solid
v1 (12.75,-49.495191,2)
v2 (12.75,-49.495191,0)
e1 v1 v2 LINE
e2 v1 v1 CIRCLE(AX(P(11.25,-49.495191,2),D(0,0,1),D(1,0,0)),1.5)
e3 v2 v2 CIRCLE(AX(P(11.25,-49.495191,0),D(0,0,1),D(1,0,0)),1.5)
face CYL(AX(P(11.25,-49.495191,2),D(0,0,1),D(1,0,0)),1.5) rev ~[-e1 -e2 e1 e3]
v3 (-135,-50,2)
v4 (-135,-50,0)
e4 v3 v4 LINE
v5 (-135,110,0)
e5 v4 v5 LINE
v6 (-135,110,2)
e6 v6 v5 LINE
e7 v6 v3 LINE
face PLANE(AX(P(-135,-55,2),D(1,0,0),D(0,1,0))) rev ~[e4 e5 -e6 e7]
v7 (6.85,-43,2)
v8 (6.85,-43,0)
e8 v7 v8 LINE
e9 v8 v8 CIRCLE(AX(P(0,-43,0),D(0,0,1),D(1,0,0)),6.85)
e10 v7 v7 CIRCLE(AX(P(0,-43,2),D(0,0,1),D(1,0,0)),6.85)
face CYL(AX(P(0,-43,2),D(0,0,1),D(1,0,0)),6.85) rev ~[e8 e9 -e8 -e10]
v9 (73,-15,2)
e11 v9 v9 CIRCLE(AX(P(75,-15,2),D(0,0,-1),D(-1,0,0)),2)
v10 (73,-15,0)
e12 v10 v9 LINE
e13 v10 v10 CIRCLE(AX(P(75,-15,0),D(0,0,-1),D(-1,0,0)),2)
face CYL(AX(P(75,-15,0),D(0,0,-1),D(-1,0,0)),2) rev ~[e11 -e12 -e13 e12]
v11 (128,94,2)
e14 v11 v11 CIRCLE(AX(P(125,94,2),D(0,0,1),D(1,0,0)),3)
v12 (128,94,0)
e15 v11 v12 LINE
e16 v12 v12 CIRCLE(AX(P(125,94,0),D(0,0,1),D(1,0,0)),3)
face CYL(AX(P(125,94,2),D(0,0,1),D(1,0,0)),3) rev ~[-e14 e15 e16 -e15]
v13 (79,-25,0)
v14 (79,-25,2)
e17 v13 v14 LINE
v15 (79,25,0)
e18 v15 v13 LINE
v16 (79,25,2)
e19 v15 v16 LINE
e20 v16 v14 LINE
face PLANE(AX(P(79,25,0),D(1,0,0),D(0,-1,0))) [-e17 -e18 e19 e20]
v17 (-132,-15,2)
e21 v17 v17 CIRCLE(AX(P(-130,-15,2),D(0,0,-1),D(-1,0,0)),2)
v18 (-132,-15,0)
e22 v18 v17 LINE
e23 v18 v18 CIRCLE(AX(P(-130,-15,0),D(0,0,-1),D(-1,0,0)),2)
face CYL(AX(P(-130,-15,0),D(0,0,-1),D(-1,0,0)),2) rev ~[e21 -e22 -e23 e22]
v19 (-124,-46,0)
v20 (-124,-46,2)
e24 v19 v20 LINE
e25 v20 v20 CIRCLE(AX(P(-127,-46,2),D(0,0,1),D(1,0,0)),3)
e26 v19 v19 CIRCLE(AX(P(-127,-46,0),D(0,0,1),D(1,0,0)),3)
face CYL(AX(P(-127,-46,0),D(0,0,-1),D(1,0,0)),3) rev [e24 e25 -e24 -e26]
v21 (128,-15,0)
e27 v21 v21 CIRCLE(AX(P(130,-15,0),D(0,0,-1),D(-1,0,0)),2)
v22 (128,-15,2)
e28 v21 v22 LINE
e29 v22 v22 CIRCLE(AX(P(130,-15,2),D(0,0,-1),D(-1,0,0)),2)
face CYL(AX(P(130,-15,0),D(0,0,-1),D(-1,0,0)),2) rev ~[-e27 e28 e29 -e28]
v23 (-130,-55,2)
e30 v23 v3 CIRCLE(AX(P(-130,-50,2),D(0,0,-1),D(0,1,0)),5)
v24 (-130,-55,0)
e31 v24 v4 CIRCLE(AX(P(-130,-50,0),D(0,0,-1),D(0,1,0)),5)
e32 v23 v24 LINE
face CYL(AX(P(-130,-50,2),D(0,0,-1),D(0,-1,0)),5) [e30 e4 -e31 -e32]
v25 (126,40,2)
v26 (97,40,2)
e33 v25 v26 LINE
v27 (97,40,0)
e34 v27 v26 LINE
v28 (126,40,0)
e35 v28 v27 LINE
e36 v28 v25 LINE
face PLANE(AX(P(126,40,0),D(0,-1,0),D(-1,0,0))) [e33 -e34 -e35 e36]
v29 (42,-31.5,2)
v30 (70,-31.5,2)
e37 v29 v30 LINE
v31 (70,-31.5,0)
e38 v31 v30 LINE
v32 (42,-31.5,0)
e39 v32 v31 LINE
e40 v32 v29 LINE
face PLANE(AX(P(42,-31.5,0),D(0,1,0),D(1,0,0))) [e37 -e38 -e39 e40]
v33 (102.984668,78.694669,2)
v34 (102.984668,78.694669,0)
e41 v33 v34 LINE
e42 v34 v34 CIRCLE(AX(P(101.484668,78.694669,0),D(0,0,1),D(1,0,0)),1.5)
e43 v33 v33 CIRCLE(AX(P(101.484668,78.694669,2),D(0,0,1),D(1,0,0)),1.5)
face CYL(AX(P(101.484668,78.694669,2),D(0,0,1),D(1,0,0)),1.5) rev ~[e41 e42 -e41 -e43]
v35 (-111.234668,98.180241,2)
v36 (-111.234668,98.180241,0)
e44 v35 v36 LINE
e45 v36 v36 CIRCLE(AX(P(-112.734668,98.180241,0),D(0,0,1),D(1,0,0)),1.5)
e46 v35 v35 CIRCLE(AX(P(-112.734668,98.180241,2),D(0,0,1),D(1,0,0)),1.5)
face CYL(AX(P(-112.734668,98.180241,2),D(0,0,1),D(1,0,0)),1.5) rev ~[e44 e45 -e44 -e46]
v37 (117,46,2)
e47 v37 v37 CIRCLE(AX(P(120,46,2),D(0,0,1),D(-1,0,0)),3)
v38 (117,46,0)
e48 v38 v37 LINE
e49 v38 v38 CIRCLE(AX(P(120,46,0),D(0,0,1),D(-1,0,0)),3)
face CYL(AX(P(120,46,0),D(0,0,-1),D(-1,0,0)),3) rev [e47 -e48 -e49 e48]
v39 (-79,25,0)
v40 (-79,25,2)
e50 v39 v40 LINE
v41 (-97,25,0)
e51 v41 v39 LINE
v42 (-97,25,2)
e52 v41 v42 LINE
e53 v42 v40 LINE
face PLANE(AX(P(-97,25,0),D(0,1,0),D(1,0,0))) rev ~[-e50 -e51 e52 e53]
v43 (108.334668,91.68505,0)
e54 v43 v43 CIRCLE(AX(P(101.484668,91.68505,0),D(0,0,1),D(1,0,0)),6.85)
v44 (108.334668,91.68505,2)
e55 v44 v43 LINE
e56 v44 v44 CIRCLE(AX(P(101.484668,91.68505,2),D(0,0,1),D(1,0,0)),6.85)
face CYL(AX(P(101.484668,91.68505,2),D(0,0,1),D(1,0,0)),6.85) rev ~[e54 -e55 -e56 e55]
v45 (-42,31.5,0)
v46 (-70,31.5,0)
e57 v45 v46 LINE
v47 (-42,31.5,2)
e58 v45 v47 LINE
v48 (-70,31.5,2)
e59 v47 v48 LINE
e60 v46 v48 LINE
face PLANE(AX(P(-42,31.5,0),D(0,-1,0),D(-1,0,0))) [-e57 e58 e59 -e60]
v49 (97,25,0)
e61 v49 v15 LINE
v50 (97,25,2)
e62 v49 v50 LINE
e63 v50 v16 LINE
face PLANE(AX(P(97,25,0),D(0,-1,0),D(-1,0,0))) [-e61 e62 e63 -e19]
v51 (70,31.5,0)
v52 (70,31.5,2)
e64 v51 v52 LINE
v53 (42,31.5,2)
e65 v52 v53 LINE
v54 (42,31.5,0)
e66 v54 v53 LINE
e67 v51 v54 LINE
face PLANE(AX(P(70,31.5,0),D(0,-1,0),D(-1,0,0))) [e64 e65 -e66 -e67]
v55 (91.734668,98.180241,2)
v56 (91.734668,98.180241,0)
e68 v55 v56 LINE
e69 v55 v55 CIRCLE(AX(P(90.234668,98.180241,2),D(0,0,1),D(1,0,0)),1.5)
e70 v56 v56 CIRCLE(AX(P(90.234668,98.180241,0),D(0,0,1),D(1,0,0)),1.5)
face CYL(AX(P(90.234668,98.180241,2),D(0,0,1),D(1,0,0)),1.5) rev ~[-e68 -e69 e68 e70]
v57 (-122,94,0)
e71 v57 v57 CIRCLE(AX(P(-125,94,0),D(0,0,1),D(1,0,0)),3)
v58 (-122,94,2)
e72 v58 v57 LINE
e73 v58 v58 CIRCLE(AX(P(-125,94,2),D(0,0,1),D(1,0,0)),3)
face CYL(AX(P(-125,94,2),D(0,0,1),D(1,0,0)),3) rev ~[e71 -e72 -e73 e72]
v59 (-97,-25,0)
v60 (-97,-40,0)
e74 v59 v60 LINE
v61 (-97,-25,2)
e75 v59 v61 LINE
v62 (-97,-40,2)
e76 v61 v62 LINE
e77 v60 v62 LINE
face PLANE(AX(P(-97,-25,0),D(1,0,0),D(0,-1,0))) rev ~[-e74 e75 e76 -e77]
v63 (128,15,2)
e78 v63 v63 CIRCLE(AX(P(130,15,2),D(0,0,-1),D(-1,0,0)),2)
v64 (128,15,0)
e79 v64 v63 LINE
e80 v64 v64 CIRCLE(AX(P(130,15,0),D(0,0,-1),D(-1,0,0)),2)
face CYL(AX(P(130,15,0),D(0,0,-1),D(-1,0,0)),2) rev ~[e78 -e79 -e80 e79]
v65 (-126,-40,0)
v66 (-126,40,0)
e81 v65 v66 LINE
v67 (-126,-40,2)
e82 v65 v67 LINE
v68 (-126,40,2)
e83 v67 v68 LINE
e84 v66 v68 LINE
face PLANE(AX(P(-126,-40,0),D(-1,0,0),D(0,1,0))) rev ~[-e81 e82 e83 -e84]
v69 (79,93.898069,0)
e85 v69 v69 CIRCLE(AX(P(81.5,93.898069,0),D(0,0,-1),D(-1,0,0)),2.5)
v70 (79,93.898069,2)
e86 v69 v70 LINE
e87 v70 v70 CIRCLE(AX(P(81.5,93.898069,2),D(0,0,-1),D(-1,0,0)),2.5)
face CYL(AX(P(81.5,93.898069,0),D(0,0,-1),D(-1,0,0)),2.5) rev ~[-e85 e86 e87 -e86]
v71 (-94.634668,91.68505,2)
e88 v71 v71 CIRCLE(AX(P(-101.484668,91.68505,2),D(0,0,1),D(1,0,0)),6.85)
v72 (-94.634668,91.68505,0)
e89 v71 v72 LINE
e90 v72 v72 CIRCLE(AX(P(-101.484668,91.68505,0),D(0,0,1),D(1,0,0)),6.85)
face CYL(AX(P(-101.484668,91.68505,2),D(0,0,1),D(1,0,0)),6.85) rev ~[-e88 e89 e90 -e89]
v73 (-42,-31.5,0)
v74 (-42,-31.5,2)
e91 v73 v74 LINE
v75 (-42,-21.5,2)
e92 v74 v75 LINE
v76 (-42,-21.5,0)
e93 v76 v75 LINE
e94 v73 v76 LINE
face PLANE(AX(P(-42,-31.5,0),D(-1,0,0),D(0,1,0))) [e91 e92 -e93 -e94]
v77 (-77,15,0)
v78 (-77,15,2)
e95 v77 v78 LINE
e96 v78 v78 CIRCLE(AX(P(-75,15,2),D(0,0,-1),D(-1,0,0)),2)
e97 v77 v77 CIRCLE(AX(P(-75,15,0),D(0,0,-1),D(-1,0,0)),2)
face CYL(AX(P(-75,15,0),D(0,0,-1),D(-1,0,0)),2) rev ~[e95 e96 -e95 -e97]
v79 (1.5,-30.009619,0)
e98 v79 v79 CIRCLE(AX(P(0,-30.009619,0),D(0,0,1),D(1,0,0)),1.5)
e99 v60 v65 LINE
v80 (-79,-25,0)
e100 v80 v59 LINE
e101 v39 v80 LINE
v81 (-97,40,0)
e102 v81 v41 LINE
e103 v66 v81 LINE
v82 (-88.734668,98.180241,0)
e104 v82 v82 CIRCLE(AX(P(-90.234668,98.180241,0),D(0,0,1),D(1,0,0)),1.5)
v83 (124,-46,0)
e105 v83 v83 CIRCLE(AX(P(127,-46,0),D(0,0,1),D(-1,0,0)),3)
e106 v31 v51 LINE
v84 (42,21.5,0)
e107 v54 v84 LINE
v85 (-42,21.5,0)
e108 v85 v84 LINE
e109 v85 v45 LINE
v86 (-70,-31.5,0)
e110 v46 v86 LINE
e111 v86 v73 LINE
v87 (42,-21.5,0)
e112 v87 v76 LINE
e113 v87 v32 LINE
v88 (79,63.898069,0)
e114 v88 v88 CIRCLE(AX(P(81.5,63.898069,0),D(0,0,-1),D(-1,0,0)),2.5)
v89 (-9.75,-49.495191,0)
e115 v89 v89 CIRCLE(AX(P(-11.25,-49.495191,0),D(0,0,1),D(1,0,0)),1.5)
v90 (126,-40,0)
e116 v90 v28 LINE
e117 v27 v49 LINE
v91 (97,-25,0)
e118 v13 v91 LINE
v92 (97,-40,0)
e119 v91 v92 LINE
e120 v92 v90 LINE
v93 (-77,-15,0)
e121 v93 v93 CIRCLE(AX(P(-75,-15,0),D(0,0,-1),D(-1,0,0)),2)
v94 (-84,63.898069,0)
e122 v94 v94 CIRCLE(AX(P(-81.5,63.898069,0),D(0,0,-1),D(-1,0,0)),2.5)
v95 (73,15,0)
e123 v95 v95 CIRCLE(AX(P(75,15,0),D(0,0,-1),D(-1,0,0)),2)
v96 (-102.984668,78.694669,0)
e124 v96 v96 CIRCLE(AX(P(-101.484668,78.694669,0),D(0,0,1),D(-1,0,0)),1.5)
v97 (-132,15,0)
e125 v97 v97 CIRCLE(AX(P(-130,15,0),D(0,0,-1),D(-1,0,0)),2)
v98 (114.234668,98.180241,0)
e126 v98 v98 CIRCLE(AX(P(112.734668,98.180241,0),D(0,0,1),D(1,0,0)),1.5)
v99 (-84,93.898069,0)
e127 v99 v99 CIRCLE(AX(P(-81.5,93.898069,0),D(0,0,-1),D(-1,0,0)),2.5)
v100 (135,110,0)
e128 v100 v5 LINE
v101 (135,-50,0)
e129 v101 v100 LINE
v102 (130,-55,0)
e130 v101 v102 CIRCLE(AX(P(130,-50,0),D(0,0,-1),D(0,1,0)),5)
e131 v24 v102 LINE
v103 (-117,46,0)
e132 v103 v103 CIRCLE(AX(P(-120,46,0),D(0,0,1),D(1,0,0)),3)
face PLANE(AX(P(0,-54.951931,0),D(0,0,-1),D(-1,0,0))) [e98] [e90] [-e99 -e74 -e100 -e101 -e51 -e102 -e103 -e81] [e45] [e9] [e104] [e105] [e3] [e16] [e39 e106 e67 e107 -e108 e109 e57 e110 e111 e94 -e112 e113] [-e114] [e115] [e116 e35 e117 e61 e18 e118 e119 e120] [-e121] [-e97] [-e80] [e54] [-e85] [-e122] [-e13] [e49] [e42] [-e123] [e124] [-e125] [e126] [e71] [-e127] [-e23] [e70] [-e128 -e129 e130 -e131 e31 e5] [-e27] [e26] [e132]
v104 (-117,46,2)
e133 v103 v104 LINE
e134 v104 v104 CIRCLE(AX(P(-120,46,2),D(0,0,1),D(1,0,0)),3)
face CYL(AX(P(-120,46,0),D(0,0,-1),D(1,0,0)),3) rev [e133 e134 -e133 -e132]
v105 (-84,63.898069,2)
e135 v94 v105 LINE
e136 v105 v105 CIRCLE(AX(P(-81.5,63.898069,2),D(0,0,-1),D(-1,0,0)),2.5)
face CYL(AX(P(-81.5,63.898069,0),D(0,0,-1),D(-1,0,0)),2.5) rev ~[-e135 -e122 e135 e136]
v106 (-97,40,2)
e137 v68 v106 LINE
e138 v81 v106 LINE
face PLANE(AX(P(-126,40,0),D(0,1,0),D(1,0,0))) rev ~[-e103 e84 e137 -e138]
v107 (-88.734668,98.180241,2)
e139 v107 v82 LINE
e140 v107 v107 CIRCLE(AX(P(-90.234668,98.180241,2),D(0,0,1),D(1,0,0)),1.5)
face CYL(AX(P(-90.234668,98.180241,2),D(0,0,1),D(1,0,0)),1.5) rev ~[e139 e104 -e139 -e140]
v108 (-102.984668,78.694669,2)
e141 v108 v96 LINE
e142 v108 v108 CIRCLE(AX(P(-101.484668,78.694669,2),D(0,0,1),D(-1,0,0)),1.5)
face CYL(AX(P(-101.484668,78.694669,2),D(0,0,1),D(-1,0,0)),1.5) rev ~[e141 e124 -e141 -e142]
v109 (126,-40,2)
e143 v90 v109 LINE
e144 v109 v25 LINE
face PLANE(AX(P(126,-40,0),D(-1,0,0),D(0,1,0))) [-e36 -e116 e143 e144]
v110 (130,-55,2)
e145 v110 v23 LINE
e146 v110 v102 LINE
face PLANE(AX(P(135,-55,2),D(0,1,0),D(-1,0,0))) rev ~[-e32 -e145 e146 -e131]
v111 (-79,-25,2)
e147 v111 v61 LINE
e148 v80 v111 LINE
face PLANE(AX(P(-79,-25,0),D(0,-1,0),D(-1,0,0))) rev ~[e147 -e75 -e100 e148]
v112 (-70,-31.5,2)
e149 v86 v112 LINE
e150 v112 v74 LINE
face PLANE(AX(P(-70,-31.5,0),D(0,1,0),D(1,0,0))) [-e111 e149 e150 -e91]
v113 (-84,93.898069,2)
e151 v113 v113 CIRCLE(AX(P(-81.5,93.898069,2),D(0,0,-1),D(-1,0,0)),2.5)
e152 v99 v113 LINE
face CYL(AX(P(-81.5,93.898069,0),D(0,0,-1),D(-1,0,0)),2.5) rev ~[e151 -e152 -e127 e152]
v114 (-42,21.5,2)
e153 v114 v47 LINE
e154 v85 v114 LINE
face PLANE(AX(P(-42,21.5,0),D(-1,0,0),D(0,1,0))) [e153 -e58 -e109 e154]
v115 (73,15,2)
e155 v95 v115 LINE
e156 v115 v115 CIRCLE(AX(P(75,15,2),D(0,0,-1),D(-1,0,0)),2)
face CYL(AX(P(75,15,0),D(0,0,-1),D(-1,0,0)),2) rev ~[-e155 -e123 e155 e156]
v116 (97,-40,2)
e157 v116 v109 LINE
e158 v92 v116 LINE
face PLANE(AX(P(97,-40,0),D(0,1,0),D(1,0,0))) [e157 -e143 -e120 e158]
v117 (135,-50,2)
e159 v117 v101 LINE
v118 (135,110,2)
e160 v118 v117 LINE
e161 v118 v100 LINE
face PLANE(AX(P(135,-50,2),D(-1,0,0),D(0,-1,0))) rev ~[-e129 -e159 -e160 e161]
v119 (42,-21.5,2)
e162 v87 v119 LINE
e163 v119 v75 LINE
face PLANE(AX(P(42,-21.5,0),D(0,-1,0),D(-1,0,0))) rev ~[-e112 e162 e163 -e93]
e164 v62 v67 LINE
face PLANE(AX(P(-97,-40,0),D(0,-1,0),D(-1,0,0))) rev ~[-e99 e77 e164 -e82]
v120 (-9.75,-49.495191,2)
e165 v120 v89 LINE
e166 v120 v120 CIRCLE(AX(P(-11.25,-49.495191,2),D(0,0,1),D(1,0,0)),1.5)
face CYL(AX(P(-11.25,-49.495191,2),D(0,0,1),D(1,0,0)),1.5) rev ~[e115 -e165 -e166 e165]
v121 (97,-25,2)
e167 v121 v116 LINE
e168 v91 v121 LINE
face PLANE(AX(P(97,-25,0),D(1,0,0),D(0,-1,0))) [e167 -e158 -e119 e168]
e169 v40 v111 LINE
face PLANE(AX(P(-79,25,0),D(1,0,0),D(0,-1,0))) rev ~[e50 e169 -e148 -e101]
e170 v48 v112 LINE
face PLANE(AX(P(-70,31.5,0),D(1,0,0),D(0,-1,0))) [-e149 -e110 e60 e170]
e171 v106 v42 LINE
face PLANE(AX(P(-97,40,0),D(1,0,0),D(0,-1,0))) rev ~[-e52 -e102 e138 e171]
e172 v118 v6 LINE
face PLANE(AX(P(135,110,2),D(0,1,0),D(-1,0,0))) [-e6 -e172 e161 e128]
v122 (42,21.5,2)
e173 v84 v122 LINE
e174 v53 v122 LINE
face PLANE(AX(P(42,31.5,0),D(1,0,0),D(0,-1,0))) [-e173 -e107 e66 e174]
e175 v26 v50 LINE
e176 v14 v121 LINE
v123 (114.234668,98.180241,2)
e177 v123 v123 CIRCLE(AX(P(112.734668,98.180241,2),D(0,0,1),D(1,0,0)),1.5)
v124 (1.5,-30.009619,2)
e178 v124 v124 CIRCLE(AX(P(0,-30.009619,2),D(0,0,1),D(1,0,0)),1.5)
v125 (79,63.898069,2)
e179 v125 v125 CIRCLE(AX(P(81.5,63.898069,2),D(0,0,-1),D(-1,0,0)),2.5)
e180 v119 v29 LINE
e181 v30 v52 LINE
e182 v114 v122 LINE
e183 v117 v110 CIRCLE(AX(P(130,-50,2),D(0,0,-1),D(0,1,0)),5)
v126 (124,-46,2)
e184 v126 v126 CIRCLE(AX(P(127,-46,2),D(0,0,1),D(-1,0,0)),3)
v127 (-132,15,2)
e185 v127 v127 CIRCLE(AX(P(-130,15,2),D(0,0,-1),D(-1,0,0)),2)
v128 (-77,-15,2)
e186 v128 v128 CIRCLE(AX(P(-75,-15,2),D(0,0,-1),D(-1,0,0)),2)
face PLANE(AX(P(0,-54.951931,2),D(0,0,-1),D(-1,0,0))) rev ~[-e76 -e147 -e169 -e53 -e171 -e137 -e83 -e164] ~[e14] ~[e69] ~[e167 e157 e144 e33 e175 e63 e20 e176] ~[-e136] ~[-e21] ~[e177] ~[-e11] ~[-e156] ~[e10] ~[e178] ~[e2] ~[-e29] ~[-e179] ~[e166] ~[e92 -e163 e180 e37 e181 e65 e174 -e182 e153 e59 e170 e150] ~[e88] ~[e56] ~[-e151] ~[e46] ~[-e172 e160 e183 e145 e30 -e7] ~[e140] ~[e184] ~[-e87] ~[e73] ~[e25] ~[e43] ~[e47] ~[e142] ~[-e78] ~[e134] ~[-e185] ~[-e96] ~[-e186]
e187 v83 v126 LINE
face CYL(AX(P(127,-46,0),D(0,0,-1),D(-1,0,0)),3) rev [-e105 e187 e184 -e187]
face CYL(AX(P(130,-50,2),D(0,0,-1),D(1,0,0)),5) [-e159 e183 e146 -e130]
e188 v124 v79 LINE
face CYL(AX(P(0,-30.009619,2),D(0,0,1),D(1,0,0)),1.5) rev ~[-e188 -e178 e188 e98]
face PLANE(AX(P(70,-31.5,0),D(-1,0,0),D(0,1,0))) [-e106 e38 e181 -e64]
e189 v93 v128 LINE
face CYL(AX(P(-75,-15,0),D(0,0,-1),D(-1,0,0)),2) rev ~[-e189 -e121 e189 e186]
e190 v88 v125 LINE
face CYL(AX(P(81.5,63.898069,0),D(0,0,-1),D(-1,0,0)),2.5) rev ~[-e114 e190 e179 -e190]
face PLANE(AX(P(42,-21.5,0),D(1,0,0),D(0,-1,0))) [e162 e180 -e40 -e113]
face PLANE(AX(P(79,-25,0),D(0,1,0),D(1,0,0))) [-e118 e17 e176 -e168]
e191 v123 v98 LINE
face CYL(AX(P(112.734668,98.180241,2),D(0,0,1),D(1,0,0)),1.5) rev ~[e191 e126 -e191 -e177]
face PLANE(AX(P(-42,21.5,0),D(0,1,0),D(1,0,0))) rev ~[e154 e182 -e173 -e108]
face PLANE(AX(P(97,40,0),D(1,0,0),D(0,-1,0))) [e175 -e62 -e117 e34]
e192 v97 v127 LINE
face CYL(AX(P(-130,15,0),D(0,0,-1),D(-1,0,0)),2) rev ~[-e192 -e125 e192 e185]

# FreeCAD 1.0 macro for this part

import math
import FreeCAD as App
import Part
import Sketcher

V = App.Vector


def edges_at(feature, points):
    """Names of the edges that pass closest to the given points."""
    edges = feature.Shape.Edges
    near = lambda p: min(range(len(edges)), key=lambda i: edges[i].distToShape(Part.Vertex(*p))[0])
    return sorted({f"Edge{near(p) + 1}" for p in points})

doc = App.newDocument("Part")
body = doc.addObject("PartDesign::Body", "Body")

# Sketch on XY plane
sketch1 = body.newObject("Sketcher::SketchObject", "Sketch")
sketch1.AttachmentSupport = (doc.getObject("XY_Plane"), [""])
sketch1.MapMode = "FlatFace"
sketch1.addGeometry(Part.LineSegment(V(-135, -50, 0), V(135, -50, 0)), False)
sketch1.addGeometry(Part.LineSegment(V(135, -50, 0), V(135, 50, 0)), False)
sketch1.addGeometry(Part.LineSegment(V(135, 50, 0), V(-135, 50, 0)), False)
sketch1.addGeometry(Part.LineSegment(V(-135, 50, 0), V(-135, -50, 0)), False)
sketch1.addGeometry(Part.Circle(V(-127, -46, 0), V(0, 0, 1), 3), False)
sketch1.addGeometry(Part.LineSegment(V(-126, -40, 0), V(-126, 40, 0)), False)
sketch1.addGeometry(Part.LineSegment(V(-126, 40, 0), V(-97, 40, 0)), False)
sketch1.addGeometry(Part.LineSegment(V(-97, 40, 0), V(-97, 25, 0)), False)
sketch1.addGeometry(Part.LineSegment(V(-97, 25, 0), V(-79, 25, 0)), False)
sketch1.addGeometry(Part.LineSegment(V(-79, 25, 0), V(-79, -25, 0)), False)
sketch1.addGeometry(Part.LineSegment(V(-79, -25, 0), V(-97, -25, 0)), False)
sketch1.addGeometry(Part.LineSegment(V(-97, -25, 0), V(-97, -40, 0)), False)
sketch1.addGeometry(Part.LineSegment(V(-97, -40, 0), V(-126, -40, 0)), False)
sketch1.addGeometry(Part.Circle(V(127, -46, 0), V(0, 0, 1), 3), False)
sketch1.addGeometry(Part.LineSegment(V(-42, -31.5, 0), V(-70, -31.5, 0)), False)
sketch1.addGeometry(Part.LineSegment(V(-70, -31.5, 0), V(-70, 31.5, 0)), False)
sketch1.addGeometry(Part.LineSegment(V(-70, 31.5, 0), V(-42, 31.5, 0)), False)
sketch1.addGeometry(Part.LineSegment(V(-42, 31.5, 0), V(-42, 21.5, 0)), False)
sketch1.addGeometry(Part.LineSegment(V(-42, 21.5, 0), V(42, 21.5, 0)), False)
sketch1.addGeometry(Part.LineSegment(V(42, 21.5, 0), V(42, 31.5, 0)), False)
sketch1.addGeometry(Part.LineSegment(V(42, 31.5, 0), V(70, 31.5, 0)), False)
sketch1.addGeometry(Part.LineSegment(V(70, 31.5, 0), V(70, -31.5, 0)), False)
sketch1.addGeometry(Part.LineSegment(V(70, -31.5, 0), V(42, -31.5, 0)), False)
sketch1.addGeometry(Part.LineSegment(V(42, -31.5, 0), V(42, -21.5, 0)), False)
sketch1.addGeometry(Part.LineSegment(V(42, -21.5, 0), V(-42, -21.5, 0)), False)
sketch1.addGeometry(Part.LineSegment(V(-42, -21.5, 0), V(-42, -31.5, 0)), False)
sketch1.addGeometry(Part.LineSegment(V(126, -40, 0), V(97, -40, 0)), False)
sketch1.addGeometry(Part.LineSegment(V(97, -40, 0), V(97, -25, 0)), False)
sketch1.addGeometry(Part.LineSegment(V(97, -25, 0), V(79, -25, 0)), False)
sketch1.addGeometry(Part.LineSegment(V(79, -25, 0), V(79, 25, 0)), False)
sketch1.addGeometry(Part.LineSegment(V(79, 25, 0), V(97, 25, 0)), False)
sketch1.addGeometry(Part.LineSegment(V(97, 25, 0), V(97, 40, 0)), False)
sketch1.addGeometry(Part.LineSegment(V(97, 40, 0), V(126, 40, 0)), False)
sketch1.addGeometry(Part.LineSegment(V(126, 40, 0), V(126, -40, 0)), False)
sketch1.addGeometry(Part.Circle(V(-120, 46, 0), V(0, 0, 1), 3), False)
sketch1.addGeometry(Part.Circle(V(120, 46, 0), V(0, 0, 1), 3), False)
sketch1.addConstraint(Sketcher.Constraint("Coincident", 0, 2, 1, 1))
sketch1.addConstraint(Sketcher.Constraint("Coincident", 1, 2, 2, 1))
sketch1.addConstraint(Sketcher.Constraint("Coincident", 2, 2, 3, 1))
sketch1.addConstraint(Sketcher.Constraint("Coincident", 3, 2, 0, 1))
sketch1.addConstraint(Sketcher.Constraint("Coincident", 5, 2, 6, 1))
sketch1.addConstraint(Sketcher.Constraint("Coincident", 6, 2, 7, 1))
sketch1.addConstraint(Sketcher.Constraint("Coincident", 7, 2, 8, 1))
sketch1.addConstraint(Sketcher.Constraint("Coincident", 8, 2, 9, 1))
sketch1.addConstraint(Sketcher.Constraint("Coincident", 9, 2, 10, 1))
sketch1.addConstraint(Sketcher.Constraint("Coincident", 10, 2, 11, 1))
sketch1.addConstraint(Sketcher.Constraint("Coincident", 11, 2, 12, 1))
sketch1.addConstraint(Sketcher.Constraint("Coincident", 12, 2, 5, 1))
sketch1.addConstraint(Sketcher.Constraint("Coincident", 14, 2, 15, 1))
sketch1.addConstraint(Sketcher.Constraint("Coincident", 15, 2, 16, 1))
sketch1.addConstraint(Sketcher.Constraint("Coincident", 16, 2, 17, 1))
sketch1.addConstraint(Sketcher.Constraint("Coincident", 17, 2, 18, 1))
sketch1.addConstraint(Sketcher.Constraint("Coincident", 18, 2, 19, 1))
sketch1.addConstraint(Sketcher.Constraint("Coincident", 19, 2, 20, 1))
sketch1.addConstraint(Sketcher.Constraint("Coincident", 20, 2, 21, 1))
sketch1.addConstraint(Sketcher.Constraint("Coincident", 21, 2, 22, 1))
sketch1.addConstraint(Sketcher.Constraint("Coincident", 22, 2, 23, 1))
sketch1.addConstraint(Sketcher.Constraint("Coincident", 23, 2, 24, 1))
sketch1.addConstraint(Sketcher.Constraint("Coincident", 24, 2, 25, 1))
sketch1.addConstraint(Sketcher.Constraint("Coincident", 25, 2, 14, 1))
sketch1.addConstraint(Sketcher.Constraint("Coincident", 26, 2, 27, 1))
sketch1.addConstraint(Sketcher.Constraint("Coincident", 27, 2, 28, 1))
sketch1.addConstraint(Sketcher.Constraint("Coincident", 28, 2, 29, 1))
sketch1.addConstraint(Sketcher.Constraint("Coincident", 29, 2, 30, 1))
sketch1.addConstraint(Sketcher.Constraint("Coincident", 30, 2, 31, 1))
sketch1.addConstraint(Sketcher.Constraint("Coincident", 31, 2, 32, 1))
sketch1.addConstraint(Sketcher.Constraint("Coincident", 32, 2, 33, 1))
sketch1.addConstraint(Sketcher.Constraint("Coincident", 33, 2, 26, 1))
sketch1.addConstraint(Sketcher.Constraint("Horizontal", 0))
sketch1.addConstraint(Sketcher.Constraint("Vertical", 1))
sketch1.addConstraint(Sketcher.Constraint("Horizontal", 2))
sketch1.addConstraint(Sketcher.Constraint("Vertical", 3))
sketch1.addConstraint(Sketcher.Constraint("Vertical", 5))
sketch1.addConstraint(Sketcher.Constraint("Horizontal", 6))
sketch1.addConstraint(Sketcher.Constraint("Vertical", 7))
sketch1.addConstraint(Sketcher.Constraint("Horizontal", 8))
sketch1.addConstraint(Sketcher.Constraint("Vertical", 9))
sketch1.addConstraint(Sketcher.Constraint("Horizontal", 10))
sketch1.addConstraint(Sketcher.Constraint("Vertical", 11))
sketch1.addConstraint(Sketcher.Constraint("Horizontal", 12))
sketch1.addConstraint(Sketcher.Constraint("Horizontal", 14))
sketch1.addConstraint(Sketcher.Constraint("Vertical", 15))
sketch1.addConstraint(Sketcher.Constraint("Horizontal", 16))
sketch1.addConstraint(Sketcher.Constraint("Vertical", 17))
sketch1.addConstraint(Sketcher.Constraint("Horizontal", 18))
sketch1.addConstraint(Sketcher.Constraint("Vertical", 19))
sketch1.addConstraint(Sketcher.Constraint("Horizontal", 20))
sketch1.addConstraint(Sketcher.Constraint("Vertical", 21))
sketch1.addConstraint(Sketcher.Constraint("Horizontal", 22))
sketch1.addConstraint(Sketcher.Constraint("Vertical", 23))
sketch1.addConstraint(Sketcher.Constraint("Horizontal", 24))
sketch1.addConstraint(Sketcher.Constraint("Vertical", 25))
sketch1.addConstraint(Sketcher.Constraint("Horizontal", 26))
sketch1.addConstraint(Sketcher.Constraint("Vertical", 27))
sketch1.addConstraint(Sketcher.Constraint("Horizontal", 28))
sketch1.addConstraint(Sketcher.Constraint("Vertical", 29))
sketch1.addConstraint(Sketcher.Constraint("Horizontal", 30))
sketch1.addConstraint(Sketcher.Constraint("Vertical", 31))
sketch1.addConstraint(Sketcher.Constraint("Horizontal", 32))
sketch1.addConstraint(Sketcher.Constraint("Vertical", 33))
sketch1.addConstraint(Sketcher.Constraint("Equal", 4, 13))
sketch1.addConstraint(Sketcher.Constraint("Equal", 13, 34))
sketch1.addConstraint(Sketcher.Constraint("Equal", 34, 35))
sketch1.addConstraint(Sketcher.Constraint("Symmetric", 0, 2, 2, 2, -1, 1))
sketch1.addConstraint(Sketcher.Constraint("Symmetric", 14, 2, 20, 2, -1, 1))
sketch1.addConstraint(Sketcher.Constraint("Symmetric", 16, 2, 22, 2, -1, 1))
sketch1.addConstraint(Sketcher.Constraint("Symmetric", 18, 2, 24, 2, -1, 1))
sketch1.addConstraint(Sketcher.Constraint("Symmetric", 6, 2, 26, 2, -1, 1))
sketch1.addConstraint(Sketcher.Constraint("Symmetric", 8, 2, 28, 2, -1, 1))
sketch1.addConstraint(Sketcher.Constraint("Symmetric", 10, 2, 30, 2, -1, 1))
sketch1.addConstraint(Sketcher.Constraint("Symmetric", 12, 2, 32, 2, -1, 1))
sketch1.addConstraint(Sketcher.Constraint("Symmetric", 4, 3, 13, 3, -2))
sketch1.addConstraint(Sketcher.Constraint("Symmetric", 34, 3, 35, 3, -2))
sketch1.addConstraint(Sketcher.Constraint("Symmetric", 16, 2, 19, 2, -2))
sketch1.addConstraint(Sketcher.Constraint("Symmetric", 11, 2, 26, 2, -2))
sketch1.addConstraint(Sketcher.Constraint("Horizontal", 10, 2, 27, 2))
sketch1.addConstraint(Sketcher.Constraint("Diameter", 4, 6.0))
sketch1.addConstraint(Sketcher.Constraint("DistanceX", 0, 1, 0, 2, 270.0))
sketch1.addConstraint(Sketcher.Constraint("DistanceX", 6, 1, 6, 2, 29.0))
sketch1.addConstraint(Sketcher.Constraint("DistanceX", 8, 1, 8, 2, 18.0))
sketch1.addConstraint(Sketcher.Constraint("DistanceX", 14, 2, 14, 1, 28.0))
sketch1.addConstraint(Sketcher.Constraint("DistanceX", 18, 1, 18, 2, 84.0))
sketch1.addConstraint(Sketcher.Constraint("DistanceY", 1, 1, 1, 2, 100.0))
sketch1.addConstraint(Sketcher.Constraint("DistanceY", 5, 1, 5, 2, 80.0))
sketch1.addConstraint(Sketcher.Constraint("DistanceY", 7, 2, 7, 1, 15.0))
sketch1.addConstraint(Sketcher.Constraint("DistanceY", 15, 1, 15, 2, 63.0))
sketch1.addConstraint(Sketcher.Constraint("DistanceY", 17, 2, 17, 1, 10.0))
sketch1.addConstraint(Sketcher.Constraint("DistanceX", 4, 3, -1, 1, 127.0))
sketch1.addConstraint(Sketcher.Constraint("DistanceY", 4, 3, -1, 1, 46.0))
sketch1.addConstraint(Sketcher.Constraint("DistanceX", 34, 3, -1, 1, 120.0))
sketch1.addConstraint(Sketcher.Constraint("DistanceY", -1, 1, 34, 3, 46.0))
sketch1.addConstraint(Sketcher.Constraint("DistanceX", 5, 2, -1, 1, 126.0))
pad1 = body.newObject("PartDesign::Pad", "Pad")
pad1.Profile = sketch1
pad1.Length = 2
body2 = doc.addObject("PartDesign::Body", "Body001")

# Sketch on XY plane
sketch2 = body2.newObject("Sketcher::SketchObject", "Sketch001")
sketch2.AttachmentSupport = (doc.getObject("XY_Plane001"), [""])
sketch2.MapMode = "FlatFace"
sketch2.AttachmentOffset = App.Placement(V(0, 0, 2), App.Rotation())
sketch2.addGeometry(Part.LineSegment(V(135, 110, 0), V(-135, 110, 0)), False)
sketch2.addGeometry(Part.LineSegment(V(-135, 110, 0), V(-135, 50, 0)), False)
sketch2.addGeometry(Part.LineSegment(V(-135, 50, 0), V(135, 50, 0)), False)
sketch2.addGeometry(Part.LineSegment(V(135, 50, 0), V(135, 110, 0)), False)
sketch2.addGeometry(Part.Circle(V(125, 94, 0), V(0, 0, 1), 3), False)
sketch2.addGeometry(Part.Circle(V(-125, 94, 0), V(0, 0, 1), 3), False)
sketch2.addConstraint(Sketcher.Constraint("Coincident", 0, 2, 1, 1))
sketch2.addConstraint(Sketcher.Constraint("Coincident", 1, 2, 2, 1))
sketch2.addConstraint(Sketcher.Constraint("Coincident", 2, 2, 3, 1))
sketch2.addConstraint(Sketcher.Constraint("Coincident", 3, 2, 0, 1))
sketch2.addConstraint(Sketcher.Constraint("Horizontal", 0))
sketch2.addConstraint(Sketcher.Constraint("Vertical", 1))
sketch2.addConstraint(Sketcher.Constraint("Horizontal", 2))
sketch2.addConstraint(Sketcher.Constraint("Vertical", 3))
sketch2.addConstraint(Sketcher.Constraint("Equal", 4, 5))
sketch2.addConstraint(Sketcher.Constraint("Symmetric", 4, 3, 5, 3, -2))
sketch2.addConstraint(Sketcher.Constraint("Diameter", 4, 6.0))
sketch2.addConstraint(Sketcher.Constraint("DistanceX", 0, 2, 0, 1, 270.0))
sketch2.addConstraint(Sketcher.Constraint("DistanceY", 1, 2, 1, 1, 60.0))
sketch2.addConstraint(Sketcher.Constraint("DistanceX", -1, 1, 4, 3, 125.0))
sketch2.addConstraint(Sketcher.Constraint("DistanceY", -1, 1, 4, 3, 94.0))
sketch2.addConstraint(Sketcher.Constraint("DistanceX", 0, 2, -1, 1, 135.0))
sketch2.addConstraint(Sketcher.Constraint("DistanceY", -1, 1, 0, 2, 110.0))
pad2 = body2.newObject("PartDesign::Pad", "Pad001")
pad2.Profile = sketch2
pad2.Length = 2
pad2.Reversed = True
doc.recompute()

boolean = body2.newObject("PartDesign::Boolean", "Boolean")
boolean.Type = "Fuse"
boolean.addObjects([body])
body3 = doc.addObject("PartDesign::Body", "Body002")

# Sketch on XY plane
sketch3 = body3.newObject("Sketcher::SketchObject", "Sketch002")
sketch3.AttachmentSupport = (doc.getObject("XY_Plane002"), [""])
sketch3.MapMode = "FlatFace"
sketch3.AttachmentOffset = App.Placement(V(0, 0, 2), App.Rotation())
sketch3.addGeometry(Part.LineSegment(V(135, -50, 0), V(-135, -50, 0)), False)
sketch3.addGeometry(Part.LineSegment(V(-135, -50, 0), V(-135, -55, 0)), False)
sketch3.addGeometry(Part.ArcOfCircle(Part.Circle(V(-130, -55, 0), V(0, 0, 1), 5), math.radians(180), math.radians(270)), False)
sketch3.addGeometry(Part.LineSegment(V(-130, -60, 0), V(130, -60, 0)), False)
sketch3.addGeometry(Part.ArcOfCircle(Part.Circle(V(130, -55, 0), V(0, 0, 1), 5), math.radians(-90), math.radians(0)), False)
sketch3.addGeometry(Part.LineSegment(V(135, -55, 0), V(135, -50, 0)), False)
sketch3.addConstraint(Sketcher.Constraint("Coincident", 0, 2, 1, 1))
sketch3.addConstraint(Sketcher.Constraint("Tangent", 1, 2, 2, 1))
sketch3.addConstraint(Sketcher.Constraint("Tangent", 2, 2, 3, 1))
sketch3.addConstraint(Sketcher.Constraint("Tangent", 3, 2, 4, 1))
sketch3.addConstraint(Sketcher.Constraint("Tangent", 4, 2, 5, 1))
sketch3.addConstraint(Sketcher.Constraint("Coincident", 5, 2, 0, 1))
sketch3.addConstraint(Sketcher.Constraint("Horizontal", 0))
sketch3.addConstraint(Sketcher.Constraint("Vertical", 1))
sketch3.addConstraint(Sketcher.Constraint("Horizontal", 3))
sketch3.addConstraint(Sketcher.Constraint("Vertical", 5))
sketch3.addConstraint(Sketcher.Constraint("Equal", 2, 4))
sketch3.addConstraint(Sketcher.Constraint("Radius", 2, 5.0))
sketch3.addConstraint(Sketcher.Constraint("DistanceX", 0, 2, 0, 1, 270.0))
sketch3.addConstraint(Sketcher.Constraint("DistanceY", 1, 2, 1, 1, 5.0))
sketch3.addConstraint(Sketcher.Constraint("DistanceX", 2, 3, -1, 1, 130.0))
sketch3.addConstraint(Sketcher.Constraint("DistanceY", 2, 3, -1, 1, 55.0))
pad3 = body3.newObject("PartDesign::Pad", "Pad002")
pad3.Profile = sketch3
pad3.Length = 2
pad3.Reversed = True
doc.recompute()

boolean2 = body2.newObject("PartDesign::Boolean", "Boolean001")
boolean2.Type = "Fuse"
boolean2.addObjects([body3])

# Sketch on XY plane
sketch4 = body2.newObject("Sketcher::SketchObject", "Sketch003")
sketch4.AttachmentSupport = (doc.getObject("XY_Plane001"), [""])
sketch4.MapMode = "FlatFace"
sketch4.AttachmentOffset = App.Placement(V(0, 0, 2), App.Rotation())
sketch4.addGeometry(Part.Circle(V(11.2, -49.5, 0), V(0, 0, 1), 1.5), False)
sketch4.addGeometry(Part.Circle(V(-11.2, -49.5, 0), V(0, 0, 1), 1.5), False)
sketch4.addGeometry(Part.Circle(V(0, -30, 0), V(0, 0, 1), 1.5), False)
sketch4.addGeometry(Part.Circle(V(90.2, 98.2, 0), V(0, 0, 1), 1.5), False)
sketch4.addGeometry(Part.Circle(V(0, -43, 0), V(0, 0, 1), 6.8), False)
sketch4.addGeometry(Part.Circle(V(112.7, 98.2, 0), V(0, 0, 1), 1.5), False)
sketch4.addGeometry(Part.Circle(V(101.5, 78.7, 0), V(0, 0, 1), 1.5), False)
sketch4.addGeometry(Part.Circle(V(101.5, 91.7, 0), V(0, 0, 1), 6.8), False)
sketch4.addGeometry(Part.Circle(V(-101.5, 91.7, 0), V(0, 0, 1), 6.8), False)
sketch4.addGeometry(Part.Circle(V(-101.5, 78.7, 0), V(0, 0, 1), 1.5), False)
sketch4.addGeometry(Part.Circle(V(-112.7, 98.2, 0), V(0, 0, 1), 1.5), False)
sketch4.addGeometry(Part.Circle(V(-90.2, 98.2, 0), V(0, 0, 1), 1.5), False)
sketch4.addConstraint(Sketcher.Constraint("Equal", 0, 1))
sketch4.addConstraint(Sketcher.Constraint("Equal", 1, 2))
sketch4.addConstraint(Sketcher.Constraint("Equal", 2, 3))
sketch4.addConstraint(Sketcher.Constraint("Equal", 3, 5))
sketch4.addConstraint(Sketcher.Constraint("Equal", 5, 6))
sketch4.addConstraint(Sketcher.Constraint("Equal", 4, 7))
sketch4.addConstraint(Sketcher.Constraint("Equal", 7, 8))
sketch4.addConstraint(Sketcher.Constraint("Equal", 6, 9))
sketch4.addConstraint(Sketcher.Constraint("Equal", 9, 10))
sketch4.addConstraint(Sketcher.Constraint("Equal", 10, 11))
sketch4.addConstraint(Sketcher.Constraint("Symmetric", 0, 3, 1, 3, -2))
sketch4.addConstraint(Sketcher.Constraint("Symmetric", 7, 3, 8, 3, -2))
sketch4.addConstraint(Sketcher.Constraint("Symmetric", 6, 3, 9, 3, -2))
sketch4.addConstraint(Sketcher.Constraint("Symmetric", 5, 3, 10, 3, -2))
sketch4.addConstraint(Sketcher.Constraint("Symmetric", 3, 3, 11, 3, -2))
sketch4.addConstraint(Sketcher.Constraint("PointOnObject", 2, 3, -2))
sketch4.addConstraint(Sketcher.Constraint("PointOnObject", 4, 3, -2))
sketch4.addConstraint(Sketcher.Constraint("Horizontal", 3, 3, 5, 3))
sketch4.addConstraint(Sketcher.Constraint("Vertical", 6, 3, 7, 3))
sketch4.addConstraint(Sketcher.Constraint("Diameter", 0, 3.0))
sketch4.addConstraint(Sketcher.Constraint("Diameter", 4, 13.7))
sketch4.addConstraint(Sketcher.Constraint("DistanceY", 4, 3, -1, 1, 43.0))
sketch4.addConstraint(Sketcher.Constraint("DistanceX", 1, 3, 0, 3, 22.5))
sketch4.addConstraint(Sketcher.Constraint("DistanceX", 3, 3, 5, 3, 22.5))
sketch4.addConstraint(Sketcher.Constraint("DistanceX", 3, 3, 6, 3, 11.25))
sketch4.addConstraint(Sketcher.Constraint("DistanceY", 0, 3, -1, 1, 49.495191))
sketch4.addConstraint(Sketcher.Constraint("DistanceY", 2, 3, -1, 1, 30.009619))
sketch4.addConstraint(Sketcher.Constraint("DistanceY", -1, 1, 3, 3, 98.180241))
sketch4.addConstraint(Sketcher.Constraint("DistanceY", -1, 1, 6, 3, 78.694669))
sketch4.addConstraint(Sketcher.Constraint("DistanceY", -1, 1, 7, 3, 91.68505))
sketch4.addConstraint(Sketcher.Constraint("DistanceX", -1, 1, 3, 3, 90.234668))
pocket1 = body2.newObject("PartDesign::Pocket", "Pocket")
pocket1.Profile = sketch4
pocket1.Length = 10

# Sketch on XY plane
sketch5 = body2.newObject("Sketcher::SketchObject", "Sketch004")
sketch5.AttachmentSupport = (doc.getObject("XY_Plane001"), [""])
sketch5.MapMode = "FlatFace"
sketch5.addGeometry(Part.Circle(V(130, -15, 0), V(0, 0, 1), 2), False)
sketch5.addGeometry(Part.Circle(V(130, 15, 0), V(0, 0, 1), 2), False)
sketch5.addGeometry(Part.Circle(V(75, -15, 0), V(0, 0, 1), 2), False)
sketch5.addGeometry(Part.Circle(V(75, 15, 0), V(0, 0, 1), 2), False)
sketch5.addGeometry(Part.Circle(V(-75, -15, 0), V(0, 0, 1), 2), False)
sketch5.addGeometry(Part.Circle(V(-75, 15, 0), V(0, 0, 1), 2), False)
sketch5.addGeometry(Part.Circle(V(-130, -15, 0), V(0, 0, 1), 2), False)
sketch5.addGeometry(Part.Circle(V(-130, 15, 0), V(0, 0, 1), 2), False)
sketch5.addConstraint(Sketcher.Constraint("Equal", 0, 1))
sketch5.addConstraint(Sketcher.Constraint("Equal", 1, 2))
sketch5.addConstraint(Sketcher.Constraint("Equal", 2, 3))
sketch5.addConstraint(Sketcher.Constraint("Equal", 3, 4))
sketch5.addConstraint(Sketcher.Constraint("Equal", 4, 5))
sketch5.addConstraint(Sketcher.Constraint("Equal", 5, 6))
sketch5.addConstraint(Sketcher.Constraint("Equal", 6, 7))
sketch5.addConstraint(Sketcher.Constraint("Symmetric", 3, 3, 4, 3, -1, 1))
sketch5.addConstraint(Sketcher.Constraint("Symmetric", 2, 3, 5, 3, -1, 1))
sketch5.addConstraint(Sketcher.Constraint("Symmetric", 1, 3, 6, 3, -1, 1))
sketch5.addConstraint(Sketcher.Constraint("Symmetric", 0, 3, 7, 3, -1, 1))
sketch5.addConstraint(Sketcher.Constraint("Symmetric", 2, 3, 4, 3, -2))
sketch5.addConstraint(Sketcher.Constraint("Symmetric", 0, 3, 6, 3, -2))
sketch5.addConstraint(Sketcher.Constraint("Horizontal", 0, 3, 2, 3))
sketch5.addConstraint(Sketcher.Constraint("Diameter", 0, 4.0))
sketch5.addConstraint(Sketcher.Constraint("DistanceX", -1, 1, 0, 3, 130.0))
sketch5.addConstraint(Sketcher.Constraint("DistanceY", 0, 3, -1, 1, 15.0))
sketch5.addConstraint(Sketcher.Constraint("DistanceX", -1, 1, 2, 3, 75.0))
pocket2 = body2.newObject("PartDesign::Pocket", "Pocket001")
pocket2.Profile = sketch5
pocket2.Type = "ThroughAll"
pocket2.Reversed = True

# Sketch on XY plane
sketch6 = body2.newObject("Sketcher::SketchObject", "Sketch005")
sketch6.AttachmentSupport = (doc.getObject("XY_Plane001"), [""])
sketch6.MapMode = "FlatFace"
sketch6.addGeometry(Part.Circle(V(-81.5, 93.9, 0), V(0, 0, 1), 2.5), False)
sketch6.addGeometry(Part.Circle(V(-81.5, 63.9, 0), V(0, 0, 1), 2.5), False)
sketch6.addGeometry(Part.Circle(V(81.5, 93.9, 0), V(0, 0, 1), 2.5), False)
sketch6.addGeometry(Part.Circle(V(81.5, 63.9, 0), V(0, 0, 1), 2.5), False)
sketch6.addConstraint(Sketcher.Constraint("Equal", 0, 1))
sketch6.addConstraint(Sketcher.Constraint("Equal", 1, 2))
sketch6.addConstraint(Sketcher.Constraint("Equal", 2, 3))
sketch6.addConstraint(Sketcher.Constraint("Symmetric", 0, 3, 2, 3, -2))
sketch6.addConstraint(Sketcher.Constraint("Symmetric", 1, 3, 3, 3, -2))
sketch6.addConstraint(Sketcher.Constraint("Vertical", 0, 3, 1, 3))
sketch6.addConstraint(Sketcher.Constraint("Diameter", 0, 5.0))
sketch6.addConstraint(Sketcher.Constraint("DistanceY", 1, 3, 0, 3, 30.0))
sketch6.addConstraint(Sketcher.Constraint("DistanceX", 0, 3, 2, 3, 163.0))
sketch6.addConstraint(Sketcher.Constraint("DistanceY", -1, 1, 0, 3, 93.898069))
pocket3 = body2.newObject("PartDesign::Pocket", "Pocket002")
pocket3.Profile = sketch6
pocket3.Length = 10
pocket3.Reversed = True

# Sketch on XY plane
sketch7 = body2.newObject("Sketcher::SketchObject", "Sketch006")
sketch7.AttachmentSupport = (doc.getObject("XY_Plane001"), [""])
sketch7.MapMode = "FlatFace"
sketch7.AttachmentOffset = App.Placement(V(0, 0, 2), App.Rotation())
sketch7.addGeometry(Part.LineSegment(V(-130, -60, 0), V(130, -60, 0)), False)
sketch7.addGeometry(Part.ArcOfCircle(Part.Circle(V(130, -55, 0), V(0, 0, 1), 5), math.radians(-90), math.radians(0)), False)
sketch7.addGeometry(Part.LineSegment(V(135, -55, 0), V(-135, -55, 0)), False)
sketch7.addGeometry(Part.ArcOfCircle(Part.Circle(V(-130, -55, 0), V(0, 0, 1), 5), math.radians(180), math.radians(270)), False)
sketch7.addConstraint(Sketcher.Constraint("Tangent", 0, 2, 1, 1))
sketch7.addConstraint(Sketcher.Constraint("Coincident", 1, 2, 2, 1))
sketch7.addConstraint(Sketcher.Constraint("Coincident", 2, 2, 3, 1))
sketch7.addConstraint(Sketcher.Constraint("Tangent", 3, 2, 0, 1))
sketch7.addConstraint(Sketcher.Constraint("Horizontal", 0))
sketch7.addConstraint(Sketcher.Constraint("Horizontal", 2))
sketch7.addConstraint(Sketcher.Constraint("Equal", 1, 3))
sketch7.addConstraint(Sketcher.Constraint("Horizontal", 3, 3, 1, 2))
sketch7.addConstraint(Sketcher.Constraint("Radius", 1, 5.0))
sketch7.addConstraint(Sketcher.Constraint("DistanceX", 0, 1, 0, 2, 260.0))
sketch7.addConstraint(Sketcher.Constraint("DistanceX", -1, 1, 1, 3, 130.0))
sketch7.addConstraint(Sketcher.Constraint("DistanceY", 1, 3, -1, 1, 55.0))
pocket4 = body2.newObject("PartDesign::Pocket", "Pocket003")
pocket4.Profile = sketch7
pocket4.Length = 10
doc.recompute()

fillet = body2.newObject("PartDesign::Fillet", "Fillet")
fillet.Base = (pocket4, edges_at(pocket4, [(135, -55, 1), (-135, -55, 1)]))
fillet.Radius = 5

doc.recompute()
